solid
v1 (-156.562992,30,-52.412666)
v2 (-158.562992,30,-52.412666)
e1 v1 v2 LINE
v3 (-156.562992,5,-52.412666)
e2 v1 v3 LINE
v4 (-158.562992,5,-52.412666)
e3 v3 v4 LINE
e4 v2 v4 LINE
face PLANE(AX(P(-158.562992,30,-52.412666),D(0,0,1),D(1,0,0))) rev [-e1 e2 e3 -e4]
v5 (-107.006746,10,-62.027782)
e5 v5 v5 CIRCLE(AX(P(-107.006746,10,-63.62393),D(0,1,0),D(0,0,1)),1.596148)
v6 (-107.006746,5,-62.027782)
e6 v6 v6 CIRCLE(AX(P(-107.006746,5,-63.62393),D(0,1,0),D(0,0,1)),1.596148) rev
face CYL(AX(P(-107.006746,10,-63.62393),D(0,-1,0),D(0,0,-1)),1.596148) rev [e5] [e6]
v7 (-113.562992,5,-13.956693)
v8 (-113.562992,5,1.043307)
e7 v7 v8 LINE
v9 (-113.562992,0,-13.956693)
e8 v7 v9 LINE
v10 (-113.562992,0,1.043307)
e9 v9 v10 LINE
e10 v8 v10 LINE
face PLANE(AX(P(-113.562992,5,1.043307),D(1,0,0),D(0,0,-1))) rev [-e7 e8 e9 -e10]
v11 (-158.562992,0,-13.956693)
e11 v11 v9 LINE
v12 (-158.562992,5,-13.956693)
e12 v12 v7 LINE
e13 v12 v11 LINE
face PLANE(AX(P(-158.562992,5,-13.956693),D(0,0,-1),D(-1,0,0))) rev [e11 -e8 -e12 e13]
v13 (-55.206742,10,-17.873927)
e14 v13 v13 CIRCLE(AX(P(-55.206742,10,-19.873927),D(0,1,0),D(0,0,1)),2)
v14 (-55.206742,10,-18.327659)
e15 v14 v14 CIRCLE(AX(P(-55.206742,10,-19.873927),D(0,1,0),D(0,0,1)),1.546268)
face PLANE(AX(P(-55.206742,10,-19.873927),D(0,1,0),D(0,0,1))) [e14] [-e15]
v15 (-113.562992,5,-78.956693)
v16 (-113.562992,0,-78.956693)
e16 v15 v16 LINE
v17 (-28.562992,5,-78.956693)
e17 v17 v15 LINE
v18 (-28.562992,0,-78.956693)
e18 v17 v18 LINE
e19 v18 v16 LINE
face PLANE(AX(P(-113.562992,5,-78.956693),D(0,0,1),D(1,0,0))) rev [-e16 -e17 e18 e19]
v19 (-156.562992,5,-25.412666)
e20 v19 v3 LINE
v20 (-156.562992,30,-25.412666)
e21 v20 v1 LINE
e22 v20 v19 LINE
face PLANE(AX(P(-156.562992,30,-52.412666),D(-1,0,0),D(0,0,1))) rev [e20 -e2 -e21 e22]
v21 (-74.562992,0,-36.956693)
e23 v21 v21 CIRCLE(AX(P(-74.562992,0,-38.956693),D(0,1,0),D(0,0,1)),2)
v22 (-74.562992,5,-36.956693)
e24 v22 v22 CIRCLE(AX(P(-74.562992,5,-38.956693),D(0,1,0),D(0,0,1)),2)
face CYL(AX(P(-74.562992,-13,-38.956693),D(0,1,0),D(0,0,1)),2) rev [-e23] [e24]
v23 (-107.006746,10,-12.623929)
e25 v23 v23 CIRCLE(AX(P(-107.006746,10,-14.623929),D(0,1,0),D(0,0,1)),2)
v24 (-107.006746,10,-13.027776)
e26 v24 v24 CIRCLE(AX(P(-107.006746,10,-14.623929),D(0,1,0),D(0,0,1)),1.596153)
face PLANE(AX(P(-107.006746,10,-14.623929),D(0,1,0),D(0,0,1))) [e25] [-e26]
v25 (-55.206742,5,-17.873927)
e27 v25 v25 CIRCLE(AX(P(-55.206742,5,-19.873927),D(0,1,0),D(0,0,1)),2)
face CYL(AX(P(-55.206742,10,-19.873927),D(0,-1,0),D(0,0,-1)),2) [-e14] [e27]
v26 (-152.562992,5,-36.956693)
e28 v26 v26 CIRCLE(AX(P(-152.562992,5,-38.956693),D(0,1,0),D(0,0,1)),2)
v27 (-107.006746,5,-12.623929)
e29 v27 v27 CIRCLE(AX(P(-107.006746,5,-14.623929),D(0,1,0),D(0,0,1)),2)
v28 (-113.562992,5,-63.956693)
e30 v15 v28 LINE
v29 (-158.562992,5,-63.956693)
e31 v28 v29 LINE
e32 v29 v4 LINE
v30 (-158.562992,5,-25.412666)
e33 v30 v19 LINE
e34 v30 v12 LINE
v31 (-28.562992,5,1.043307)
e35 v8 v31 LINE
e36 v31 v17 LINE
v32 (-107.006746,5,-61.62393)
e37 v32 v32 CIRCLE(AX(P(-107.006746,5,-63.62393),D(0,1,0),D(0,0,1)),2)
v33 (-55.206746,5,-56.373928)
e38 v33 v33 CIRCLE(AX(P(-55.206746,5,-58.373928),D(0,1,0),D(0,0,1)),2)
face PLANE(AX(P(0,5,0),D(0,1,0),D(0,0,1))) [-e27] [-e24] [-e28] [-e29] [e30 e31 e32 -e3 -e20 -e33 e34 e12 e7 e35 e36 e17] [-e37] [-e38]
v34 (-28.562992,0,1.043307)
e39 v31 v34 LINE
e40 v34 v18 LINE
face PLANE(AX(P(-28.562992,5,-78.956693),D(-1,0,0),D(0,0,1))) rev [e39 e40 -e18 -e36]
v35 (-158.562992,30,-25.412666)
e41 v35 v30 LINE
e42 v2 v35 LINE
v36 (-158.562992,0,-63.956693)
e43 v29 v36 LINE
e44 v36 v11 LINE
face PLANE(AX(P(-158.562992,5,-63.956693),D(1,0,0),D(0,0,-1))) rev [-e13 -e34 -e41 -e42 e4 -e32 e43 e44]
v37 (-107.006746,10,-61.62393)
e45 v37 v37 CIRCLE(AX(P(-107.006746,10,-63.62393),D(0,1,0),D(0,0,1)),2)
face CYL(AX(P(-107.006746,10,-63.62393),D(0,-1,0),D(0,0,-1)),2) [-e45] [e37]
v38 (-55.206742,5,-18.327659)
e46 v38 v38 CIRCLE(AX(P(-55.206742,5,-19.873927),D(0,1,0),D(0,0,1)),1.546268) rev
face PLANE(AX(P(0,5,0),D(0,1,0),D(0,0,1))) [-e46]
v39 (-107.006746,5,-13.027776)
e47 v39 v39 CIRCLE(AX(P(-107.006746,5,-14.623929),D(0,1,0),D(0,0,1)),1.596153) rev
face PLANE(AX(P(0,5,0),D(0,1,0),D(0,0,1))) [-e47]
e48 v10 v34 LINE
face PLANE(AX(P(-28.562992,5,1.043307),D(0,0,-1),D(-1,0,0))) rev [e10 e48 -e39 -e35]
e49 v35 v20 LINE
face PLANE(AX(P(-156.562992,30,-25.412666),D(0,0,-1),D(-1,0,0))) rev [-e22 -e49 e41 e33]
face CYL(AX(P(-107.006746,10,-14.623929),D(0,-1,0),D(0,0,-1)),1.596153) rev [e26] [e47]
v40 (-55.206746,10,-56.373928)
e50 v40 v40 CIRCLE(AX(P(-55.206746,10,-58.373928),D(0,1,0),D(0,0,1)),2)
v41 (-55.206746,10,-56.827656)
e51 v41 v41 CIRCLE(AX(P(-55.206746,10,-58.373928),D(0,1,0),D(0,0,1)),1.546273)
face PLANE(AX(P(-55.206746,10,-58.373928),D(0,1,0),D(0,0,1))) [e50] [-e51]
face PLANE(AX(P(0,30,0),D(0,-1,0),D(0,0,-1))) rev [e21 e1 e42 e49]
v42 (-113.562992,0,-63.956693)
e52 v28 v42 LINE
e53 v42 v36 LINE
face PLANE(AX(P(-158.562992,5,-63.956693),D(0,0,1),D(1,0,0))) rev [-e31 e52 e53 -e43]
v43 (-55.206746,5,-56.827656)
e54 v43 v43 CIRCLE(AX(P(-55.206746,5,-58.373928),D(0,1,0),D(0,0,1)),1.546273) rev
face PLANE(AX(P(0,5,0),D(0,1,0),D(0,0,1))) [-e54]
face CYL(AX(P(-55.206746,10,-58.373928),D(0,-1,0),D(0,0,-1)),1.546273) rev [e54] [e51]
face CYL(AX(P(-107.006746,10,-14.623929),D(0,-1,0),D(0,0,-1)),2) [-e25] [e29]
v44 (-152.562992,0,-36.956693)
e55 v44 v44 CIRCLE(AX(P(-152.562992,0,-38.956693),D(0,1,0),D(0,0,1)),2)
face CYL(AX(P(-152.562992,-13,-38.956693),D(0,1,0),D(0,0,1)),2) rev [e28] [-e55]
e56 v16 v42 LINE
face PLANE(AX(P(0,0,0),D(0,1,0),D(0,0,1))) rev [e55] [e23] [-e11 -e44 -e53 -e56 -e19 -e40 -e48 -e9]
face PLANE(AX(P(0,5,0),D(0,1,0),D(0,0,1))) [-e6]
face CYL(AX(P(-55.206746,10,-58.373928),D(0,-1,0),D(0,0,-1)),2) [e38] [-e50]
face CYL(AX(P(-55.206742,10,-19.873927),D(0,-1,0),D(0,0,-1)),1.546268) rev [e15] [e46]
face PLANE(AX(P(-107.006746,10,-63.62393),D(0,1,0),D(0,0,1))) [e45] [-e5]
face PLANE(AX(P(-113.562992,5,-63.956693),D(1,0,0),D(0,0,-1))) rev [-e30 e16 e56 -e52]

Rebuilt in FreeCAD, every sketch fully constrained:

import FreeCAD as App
import Part
import Sketcher
from FreeCAD import Vector


def add_polygon(sketch, points):
    """Adds a closed chain of lines whose ends are joined by coincident constraints."""
    first, n = sketch.GeometryCount, len(points)
    for a, b in zip(points, points[1:] + points[:1]):
        sketch.addGeometry(Part.LineSegment(App.Vector(*a, 0), App.Vector(*b, 0)), False)
    for i in range(n):
        sketch.addConstraint(Sketcher.Constraint("Coincident", first + i, 2, first + (i + 1) % n, 1))

doc = App.newDocument("Part")
body = doc.addObject("PartDesign::Body", "Body")

# Sketch on XZ plane
sketch1 = body.newObject("Sketcher::SketchObject", "Sketch")
sketch1.AttachmentSupport = (doc.getObject("XZ_Plane"), [""])
sketch1.MapMode = "FlatFace"
add_polygon(sketch1, [(-113.562992, -78.956693), (-113.562992, -63.956693), (-158.562992, -63.956693), (-158.562992, -13.956693), (-113.562992, -13.956693), (-113.562992, 1.043307), (-28.562992, 1.043307), (-28.562992, -78.956693)])  # lines 0-7
sketch1.addConstraint([
    Sketcher.Constraint("Vertical", 0),
    Sketcher.Constraint("Horizontal", 1),
    Sketcher.Constraint("Vertical", 2),
    Sketcher.Constraint("Horizontal", 3),
    Sketcher.Constraint("Vertical", 4),
    Sketcher.Constraint("Horizontal", 5),
    Sketcher.Constraint("Vertical", 6),
    Sketcher.Constraint("Horizontal", 7),
    Sketcher.Constraint("Vertical", 0, 2, 3, 2),
    Sketcher.Constraint("Equal", 0, 4),
    Sketcher.Constraint("DistanceX", 1, 2, 1, 1, 45.0),
    Sketcher.Constraint("DistanceX", 5, 1, 5, 2, 85.0),
    Sketcher.Constraint("DistanceY", 0, 1, 0, 2, 15.0),
    Sketcher.Constraint("DistanceY", 2, 1, 2, 2, 50.0),
    Sketcher.Constraint("DistanceX", 0, 2, -1, 1, 113.562992),
    Sketcher.Constraint("DistanceY", 0, 2, -1, 1, 63.956693),
])
pad1 = body.newObject("PartDesign::Pad", "Pad")
pad1.Profile = sketch1
pad1.Length = 5
pad1.Reversed = True

# Sketch on XZ plane
sketch2 = body.newObject("Sketcher::SketchObject", "Sketch001")
sketch2.AttachmentSupport = (doc.getObject("XZ_Plane"), [""])
sketch2.MapMode = "FlatFace"
sketch2.AttachmentOffset = App.Placement(Vector(0, 0, -5), App.Rotation())
sketch2.addGeometry([
    Part.Circle(Vector(-74.562992, -38.956693, 0), Vector(0, 0, 1), 2),
    Part.Circle(Vector(-152.562992, -38.956693, 0), Vector(0, 0, 1), 2),
], False)
sketch2.addConstraint([
    Sketcher.Constraint("Equal", 0, 1),
    Sketcher.Constraint("Horizontal", 0, 3, 1, 3),
    Sketcher.Constraint("Diameter", 0, 4.0),
    Sketcher.Constraint("DistanceX", 1, 3, 0, 3, 78.0),
    Sketcher.Constraint("DistanceX", 0, 3, -1, 1, 74.562992),
    Sketcher.Constraint("DistanceY", 0, 3, -1, 1, 38.956693),
])
pocket1 = body.newObject("PartDesign::Pocket", "Pocket")
pocket1.Profile = sketch2
pocket1.Length = 18
pocket1.Reversed = True

# Sketch on XZ plane
sketch3 = body.newObject("Sketcher::SketchObject", "Sketch002")
sketch3.AttachmentSupport = (doc.getObject("XZ_Plane"), [""])
sketch3.MapMode = "FlatFace"
sketch3.AttachmentOffset = App.Placement(Vector(0, 0, -5), App.Rotation())
sketch3.addGeometry([
    Part.Circle(Vector(-107.006746, -63.62393, 0), Vector(0, 0, 1), 2),  # 0
    Part.Circle(Vector(-107.006746, -63.62393, 0), Vector(0, 0, 1), 1.596148),  # 1
    Part.Circle(Vector(-107.006746, -14.623929, 0), Vector(0, 0, 1), 2),  # 2
    Part.Circle(Vector(-107.006746, -14.623929, 0), Vector(0, 0, 1), 1.596153),  # 3
    Part.Circle(Vector(-55.206742, -19.873927, 0), Vector(0, 0, 1), 2),  # 4
    Part.Circle(Vector(-55.206742, -19.873927, 0), Vector(0, 0, 1), 1.546268),  # 5
    Part.Circle(Vector(-55.206746, -58.373928, 0), Vector(0, 0, 1), 2),  # 6
    Part.Circle(Vector(-55.206746, -58.373928, 0), Vector(0, 0, 1), 1.546273),  # 7
], False)
sketch3.addConstraint([
    Sketcher.Constraint("Coincident", 1, 3, 0, 3),
    Sketcher.Constraint("Coincident", 3, 3, 2, 3),
    Sketcher.Constraint("Coincident", 5, 3, 4, 3),
    Sketcher.Constraint("Coincident", 7, 3, 6, 3),
    Sketcher.Constraint("Equal", 0, 2),
    Sketcher.Constraint("Equal", 2, 4),
    Sketcher.Constraint("Equal", 4, 6),
    Sketcher.Constraint("Vertical", 1, 3, 2, 3),
    Sketcher.Constraint("Diameter", 0, 4.0),
    Sketcher.Constraint("DistanceY", 0, 3, 2, 3, 49.000001),
    Sketcher.Constraint("DistanceY", 6, 3, 4, 3, 38.500002),
    Sketcher.Constraint("DistanceX", 0, 3, 6, 3, 51.8),
    Sketcher.Constraint("DistanceY", 0, 3, 6, 3, 5.250001),
    Sketcher.Constraint("Diameter", 1, 3.192296),
    Sketcher.Constraint("Diameter", 3, 3.192305),
    Sketcher.Constraint("Diameter", 5, 3.092536),
    Sketcher.Constraint("Diameter", 7, 3.092545),
    Sketcher.Constraint("DistanceY", 0, 3, -1, 1, 63.62393),
    Sketcher.Constraint("DistanceX", 0, 3, -1, 1, 107.006746),
    Sketcher.Constraint("DistanceX", 4, 3, -1, 1, 55.206742),
])
pad2 = body.newObject("PartDesign::Pad", "Pad001")
pad2.Profile = sketch3
pad2.Length = 5
pad2.Reversed = True

# Sketch on XZ plane
sketch4 = body.newObject("Sketcher::SketchObject", "Sketch003")
sketch4.AttachmentSupport = (doc.getObject("XZ_Plane"), [""])
sketch4.MapMode = "FlatFace"
sketch4.AttachmentOffset = App.Placement(Vector(0, 0, -5), App.Rotation())
add_polygon(sketch4, [(-158.562992, -52.412666), (-158.562992, -25.412666), (-156.562992, -25.412666), (-156.562992, -52.412666)])  # lines 0-3
sketch4.addConstraint([
    Sketcher.Constraint("Vertical", 0),
    Sketcher.Constraint("Horizontal", 1),
    Sketcher.Constraint("Vertical", 2),
    Sketcher.Constraint("Horizontal", 3),
    Sketcher.Constraint("DistanceX", 1, 1, 1, 2, 2.0),
    Sketcher.Constraint("DistanceY", 0, 1, 0, 2, 27.0),
    Sketcher.Constraint("DistanceX", 0, 2, -1, 1, 158.562992),
    Sketcher.Constraint("DistanceY", 0, 2, -1, 1, 25.412666),
])
pad3 = body.newObject("PartDesign::Pad", "Pad002")
pad3.Profile = sketch4
pad3.Length = 25
pad3.Reversed = True

doc.recompute()
